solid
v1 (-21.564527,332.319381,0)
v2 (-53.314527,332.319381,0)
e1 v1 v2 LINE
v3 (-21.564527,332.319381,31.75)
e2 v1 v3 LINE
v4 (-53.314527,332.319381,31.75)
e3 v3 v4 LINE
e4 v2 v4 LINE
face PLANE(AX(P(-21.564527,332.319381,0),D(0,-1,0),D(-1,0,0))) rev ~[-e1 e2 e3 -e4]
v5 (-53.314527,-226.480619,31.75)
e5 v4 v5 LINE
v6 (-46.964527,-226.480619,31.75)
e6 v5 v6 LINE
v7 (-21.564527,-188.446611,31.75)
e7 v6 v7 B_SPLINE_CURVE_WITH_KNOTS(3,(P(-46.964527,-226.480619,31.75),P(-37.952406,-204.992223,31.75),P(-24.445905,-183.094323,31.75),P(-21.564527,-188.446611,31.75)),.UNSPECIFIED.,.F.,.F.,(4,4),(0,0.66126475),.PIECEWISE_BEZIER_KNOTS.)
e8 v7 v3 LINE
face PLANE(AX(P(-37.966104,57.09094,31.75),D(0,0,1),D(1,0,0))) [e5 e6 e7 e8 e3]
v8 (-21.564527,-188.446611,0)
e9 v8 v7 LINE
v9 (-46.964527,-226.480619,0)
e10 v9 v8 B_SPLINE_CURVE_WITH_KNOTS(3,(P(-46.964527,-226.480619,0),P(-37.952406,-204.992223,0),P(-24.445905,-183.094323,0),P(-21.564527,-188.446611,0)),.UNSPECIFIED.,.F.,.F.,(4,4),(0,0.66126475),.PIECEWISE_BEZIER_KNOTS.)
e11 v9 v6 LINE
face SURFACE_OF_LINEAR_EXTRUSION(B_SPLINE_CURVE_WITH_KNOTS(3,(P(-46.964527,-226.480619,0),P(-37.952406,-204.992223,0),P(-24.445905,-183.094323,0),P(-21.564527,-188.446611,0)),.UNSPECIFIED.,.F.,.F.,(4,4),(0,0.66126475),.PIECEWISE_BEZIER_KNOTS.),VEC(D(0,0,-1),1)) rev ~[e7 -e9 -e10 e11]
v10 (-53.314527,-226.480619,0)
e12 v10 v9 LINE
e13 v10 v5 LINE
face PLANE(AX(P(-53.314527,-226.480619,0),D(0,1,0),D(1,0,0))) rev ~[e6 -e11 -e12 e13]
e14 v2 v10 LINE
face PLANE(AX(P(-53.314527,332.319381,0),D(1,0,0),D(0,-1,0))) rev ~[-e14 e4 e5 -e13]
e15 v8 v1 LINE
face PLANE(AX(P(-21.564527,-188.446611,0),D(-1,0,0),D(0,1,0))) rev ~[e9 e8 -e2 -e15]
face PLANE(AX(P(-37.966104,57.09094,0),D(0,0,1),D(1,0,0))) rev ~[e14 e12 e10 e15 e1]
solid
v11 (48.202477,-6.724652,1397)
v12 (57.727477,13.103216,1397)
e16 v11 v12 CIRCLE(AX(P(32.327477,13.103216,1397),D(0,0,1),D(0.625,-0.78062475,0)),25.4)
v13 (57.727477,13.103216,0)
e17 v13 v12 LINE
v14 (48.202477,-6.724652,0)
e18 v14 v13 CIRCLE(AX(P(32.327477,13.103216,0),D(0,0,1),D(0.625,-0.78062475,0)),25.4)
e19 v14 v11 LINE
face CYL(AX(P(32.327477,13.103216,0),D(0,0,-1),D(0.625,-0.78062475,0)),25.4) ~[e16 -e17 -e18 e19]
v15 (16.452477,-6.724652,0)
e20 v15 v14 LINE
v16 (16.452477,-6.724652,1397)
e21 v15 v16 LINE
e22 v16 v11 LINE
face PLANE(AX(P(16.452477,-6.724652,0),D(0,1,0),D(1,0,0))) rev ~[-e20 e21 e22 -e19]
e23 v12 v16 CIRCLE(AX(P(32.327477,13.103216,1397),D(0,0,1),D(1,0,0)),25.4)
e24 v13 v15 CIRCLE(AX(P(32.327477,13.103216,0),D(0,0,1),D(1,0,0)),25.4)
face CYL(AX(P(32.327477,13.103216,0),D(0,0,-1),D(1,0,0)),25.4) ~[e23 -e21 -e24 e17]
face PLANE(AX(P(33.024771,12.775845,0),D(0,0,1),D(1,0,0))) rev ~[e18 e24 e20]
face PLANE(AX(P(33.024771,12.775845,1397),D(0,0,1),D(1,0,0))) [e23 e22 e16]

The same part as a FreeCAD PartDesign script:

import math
import FreeCAD as App
import Part
import Sketcher
from FreeCAD import Vector
Q = App.Units.Quantity

doc = App.newDocument("Part")
params = doc.addObject("Spreadsheet::Sheet", "Params")
for row, (alias, value) in enumerate([
    ("sketch1_height", "22 in"),
    ("sketch1_width", "1.25 in"),
    ("pad1_length", "1.25 in"),
    ("sketch2_radius", "1 in"),
    ("sketch2_width", "1.25 in"),
    ("pad2_length", "55 in"),
], start=1):
    params.set(f"A{row}", alias)
    params.set(f"B{row}", "=" + value)
    params.setAlias(f"B{row}", alias)

body = doc.addObject("PartDesign::Body", "Body")

sketch1 = doc.addObject("Sketcher::SketchObject", "Sketch")
body.addObject(sketch1)
sketch1.AttachmentSupport = (doc.XY_Plane, [""])
sketch1.MapMode = "FlatFace"
sketch1.addGeometry(Part.LineSegment(Vector(-21.564527, 332.319381, 0), Vector(-53.314527, 332.319381, 0)), False)
sketch1.addGeometry(Part.LineSegment(Vector(-53.314527, 332.319381, 0), Vector(-53.314527, -226.480619, 0)), False)
sketch1.addGeometry(Part.LineSegment(Vector(-53.314527, -226.480619, 0), Vector(-46.964527, -226.480619, 0)), False)
sketch1.addGeometry(Part.BSplineCurve([Vector(-46.964527, -226.480619, 0), Vector(-37.952406, -204.992223, 0), Vector(-24.445905, -183.094323, 0), Vector(-21.564527, -188.446611, 0)], [4, 4], [0, 0.66126475], False, 3, [1, 1, 1, 1], False), False)
sketch1.addGeometry(Part.LineSegment(Vector(-21.564527, -188.446611, 0), Vector(-21.564527, 332.319381, 0)), False)
sketch1.addConstraint(Sketcher.Constraint("Block", 3))
sketch1.addConstraint(Sketcher.Constraint("Coincident", 0, 2, 1, 1))
sketch1.addConstraint(Sketcher.Constraint("Coincident", 1, 2, 2, 1))
sketch1.addConstraint(Sketcher.Constraint("Coincident", 2, 2, 3, 1))
sketch1.addConstraint(Sketcher.Constraint("Coincident", 3, 2, 4, 1))
sketch1.addConstraint(Sketcher.Constraint("Coincident", 4, 2, 0, 1))
sketch1.addConstraint(Sketcher.Constraint("Horizontal", 0))
sketch1.addConstraint(Sketcher.Constraint("Vertical", 1))
sketch1.addConstraint(Sketcher.Constraint("Horizontal", 2))
sketch1.addConstraint(Sketcher.Constraint("Vertical", 4))
sketch1.addConstraint(Sketcher.Constraint("DistanceY", 1, 2, 1, 1, Q("22 in")))
sketch1.addConstraint(Sketcher.Constraint("DistanceX", 0, 2, 0, 1, Q("1.25 in")))
sketch1.setExpression("Constraints[10]", "Params.sketch1_height")
sketch1.setExpression("Constraints[11]", "Params.sketch1_width")
pad1 = doc.addObject("PartDesign::Pad", "Pad")
body.addObject(pad1)
pad1.Profile = sketch1
pad1.setExpression("Length", "Params.pad1_length")
body2 = doc.addObject("PartDesign::Body", "Body001")

sketch2 = doc.addObject("Sketcher::SketchObject", "Sketch001")
body2.addObject(sketch2)
sketch2.AttachmentSupport = (doc.getObject("XY_Plane001"), [""])
sketch2.MapMode = "FlatFace"
sketch2.addGeometry(Part.ArcOfCircle(Part.Circle(Vector(32, 13, 0), Vector(0, 0, 1), 25), math.radians(-51), math.radians(0)), False)
sketch2.addGeometry(Part.ArcOfCircle(Part.Circle(Vector(32, 13, 0), Vector(0, 0, 1), 25), math.radians(0), math.radians(231)), False)
sketch2.addGeometry(Part.LineSegment(Vector(16, -7, 0), Vector(48, -7, 0)), False)
sketch2.addConstraint(Sketcher.Constraint("Tangent", 0, 2, 1, 1))
sketch2.addConstraint(Sketcher.Constraint("Coincident", 1, 2, 2, 1))
sketch2.addConstraint(Sketcher.Constraint("Coincident", 2, 2, 0, 1))
sketch2.addConstraint(Sketcher.Constraint("Horizontal", 2))
sketch2.addConstraint(Sketcher.Constraint("Equal", 0, 1))
sketch2.addConstraint(Sketcher.Constraint("Horizontal", 1, 3, 0, 2))
sketch2.addConstraint(Sketcher.Constraint("Radius", 0, Q("1 in")))
sketch2.addConstraint(Sketcher.Constraint("DistanceX", 2, 1, 2, 2, Q("1.25 in")))
sketch2.addConstraint(Sketcher.Constraint("DistanceX", -1, 1, 0, 3, Q("32.327477 mm")))
sketch2.addConstraint(Sketcher.Constraint("DistanceY", -1, 1, 0, 3, Q("13.103216 mm")))
sketch2.setExpression("Constraints[6]", "Params.sketch2_radius")
sketch2.setExpression("Constraints[7]", "Params.sketch2_width")
pad2 = doc.addObject("PartDesign::Pad", "Pad001")
body2.addObject(pad2)
pad2.Profile = sketch2
pad2.setExpression("Length", "Params.pad2_length")

doc.recompute()
